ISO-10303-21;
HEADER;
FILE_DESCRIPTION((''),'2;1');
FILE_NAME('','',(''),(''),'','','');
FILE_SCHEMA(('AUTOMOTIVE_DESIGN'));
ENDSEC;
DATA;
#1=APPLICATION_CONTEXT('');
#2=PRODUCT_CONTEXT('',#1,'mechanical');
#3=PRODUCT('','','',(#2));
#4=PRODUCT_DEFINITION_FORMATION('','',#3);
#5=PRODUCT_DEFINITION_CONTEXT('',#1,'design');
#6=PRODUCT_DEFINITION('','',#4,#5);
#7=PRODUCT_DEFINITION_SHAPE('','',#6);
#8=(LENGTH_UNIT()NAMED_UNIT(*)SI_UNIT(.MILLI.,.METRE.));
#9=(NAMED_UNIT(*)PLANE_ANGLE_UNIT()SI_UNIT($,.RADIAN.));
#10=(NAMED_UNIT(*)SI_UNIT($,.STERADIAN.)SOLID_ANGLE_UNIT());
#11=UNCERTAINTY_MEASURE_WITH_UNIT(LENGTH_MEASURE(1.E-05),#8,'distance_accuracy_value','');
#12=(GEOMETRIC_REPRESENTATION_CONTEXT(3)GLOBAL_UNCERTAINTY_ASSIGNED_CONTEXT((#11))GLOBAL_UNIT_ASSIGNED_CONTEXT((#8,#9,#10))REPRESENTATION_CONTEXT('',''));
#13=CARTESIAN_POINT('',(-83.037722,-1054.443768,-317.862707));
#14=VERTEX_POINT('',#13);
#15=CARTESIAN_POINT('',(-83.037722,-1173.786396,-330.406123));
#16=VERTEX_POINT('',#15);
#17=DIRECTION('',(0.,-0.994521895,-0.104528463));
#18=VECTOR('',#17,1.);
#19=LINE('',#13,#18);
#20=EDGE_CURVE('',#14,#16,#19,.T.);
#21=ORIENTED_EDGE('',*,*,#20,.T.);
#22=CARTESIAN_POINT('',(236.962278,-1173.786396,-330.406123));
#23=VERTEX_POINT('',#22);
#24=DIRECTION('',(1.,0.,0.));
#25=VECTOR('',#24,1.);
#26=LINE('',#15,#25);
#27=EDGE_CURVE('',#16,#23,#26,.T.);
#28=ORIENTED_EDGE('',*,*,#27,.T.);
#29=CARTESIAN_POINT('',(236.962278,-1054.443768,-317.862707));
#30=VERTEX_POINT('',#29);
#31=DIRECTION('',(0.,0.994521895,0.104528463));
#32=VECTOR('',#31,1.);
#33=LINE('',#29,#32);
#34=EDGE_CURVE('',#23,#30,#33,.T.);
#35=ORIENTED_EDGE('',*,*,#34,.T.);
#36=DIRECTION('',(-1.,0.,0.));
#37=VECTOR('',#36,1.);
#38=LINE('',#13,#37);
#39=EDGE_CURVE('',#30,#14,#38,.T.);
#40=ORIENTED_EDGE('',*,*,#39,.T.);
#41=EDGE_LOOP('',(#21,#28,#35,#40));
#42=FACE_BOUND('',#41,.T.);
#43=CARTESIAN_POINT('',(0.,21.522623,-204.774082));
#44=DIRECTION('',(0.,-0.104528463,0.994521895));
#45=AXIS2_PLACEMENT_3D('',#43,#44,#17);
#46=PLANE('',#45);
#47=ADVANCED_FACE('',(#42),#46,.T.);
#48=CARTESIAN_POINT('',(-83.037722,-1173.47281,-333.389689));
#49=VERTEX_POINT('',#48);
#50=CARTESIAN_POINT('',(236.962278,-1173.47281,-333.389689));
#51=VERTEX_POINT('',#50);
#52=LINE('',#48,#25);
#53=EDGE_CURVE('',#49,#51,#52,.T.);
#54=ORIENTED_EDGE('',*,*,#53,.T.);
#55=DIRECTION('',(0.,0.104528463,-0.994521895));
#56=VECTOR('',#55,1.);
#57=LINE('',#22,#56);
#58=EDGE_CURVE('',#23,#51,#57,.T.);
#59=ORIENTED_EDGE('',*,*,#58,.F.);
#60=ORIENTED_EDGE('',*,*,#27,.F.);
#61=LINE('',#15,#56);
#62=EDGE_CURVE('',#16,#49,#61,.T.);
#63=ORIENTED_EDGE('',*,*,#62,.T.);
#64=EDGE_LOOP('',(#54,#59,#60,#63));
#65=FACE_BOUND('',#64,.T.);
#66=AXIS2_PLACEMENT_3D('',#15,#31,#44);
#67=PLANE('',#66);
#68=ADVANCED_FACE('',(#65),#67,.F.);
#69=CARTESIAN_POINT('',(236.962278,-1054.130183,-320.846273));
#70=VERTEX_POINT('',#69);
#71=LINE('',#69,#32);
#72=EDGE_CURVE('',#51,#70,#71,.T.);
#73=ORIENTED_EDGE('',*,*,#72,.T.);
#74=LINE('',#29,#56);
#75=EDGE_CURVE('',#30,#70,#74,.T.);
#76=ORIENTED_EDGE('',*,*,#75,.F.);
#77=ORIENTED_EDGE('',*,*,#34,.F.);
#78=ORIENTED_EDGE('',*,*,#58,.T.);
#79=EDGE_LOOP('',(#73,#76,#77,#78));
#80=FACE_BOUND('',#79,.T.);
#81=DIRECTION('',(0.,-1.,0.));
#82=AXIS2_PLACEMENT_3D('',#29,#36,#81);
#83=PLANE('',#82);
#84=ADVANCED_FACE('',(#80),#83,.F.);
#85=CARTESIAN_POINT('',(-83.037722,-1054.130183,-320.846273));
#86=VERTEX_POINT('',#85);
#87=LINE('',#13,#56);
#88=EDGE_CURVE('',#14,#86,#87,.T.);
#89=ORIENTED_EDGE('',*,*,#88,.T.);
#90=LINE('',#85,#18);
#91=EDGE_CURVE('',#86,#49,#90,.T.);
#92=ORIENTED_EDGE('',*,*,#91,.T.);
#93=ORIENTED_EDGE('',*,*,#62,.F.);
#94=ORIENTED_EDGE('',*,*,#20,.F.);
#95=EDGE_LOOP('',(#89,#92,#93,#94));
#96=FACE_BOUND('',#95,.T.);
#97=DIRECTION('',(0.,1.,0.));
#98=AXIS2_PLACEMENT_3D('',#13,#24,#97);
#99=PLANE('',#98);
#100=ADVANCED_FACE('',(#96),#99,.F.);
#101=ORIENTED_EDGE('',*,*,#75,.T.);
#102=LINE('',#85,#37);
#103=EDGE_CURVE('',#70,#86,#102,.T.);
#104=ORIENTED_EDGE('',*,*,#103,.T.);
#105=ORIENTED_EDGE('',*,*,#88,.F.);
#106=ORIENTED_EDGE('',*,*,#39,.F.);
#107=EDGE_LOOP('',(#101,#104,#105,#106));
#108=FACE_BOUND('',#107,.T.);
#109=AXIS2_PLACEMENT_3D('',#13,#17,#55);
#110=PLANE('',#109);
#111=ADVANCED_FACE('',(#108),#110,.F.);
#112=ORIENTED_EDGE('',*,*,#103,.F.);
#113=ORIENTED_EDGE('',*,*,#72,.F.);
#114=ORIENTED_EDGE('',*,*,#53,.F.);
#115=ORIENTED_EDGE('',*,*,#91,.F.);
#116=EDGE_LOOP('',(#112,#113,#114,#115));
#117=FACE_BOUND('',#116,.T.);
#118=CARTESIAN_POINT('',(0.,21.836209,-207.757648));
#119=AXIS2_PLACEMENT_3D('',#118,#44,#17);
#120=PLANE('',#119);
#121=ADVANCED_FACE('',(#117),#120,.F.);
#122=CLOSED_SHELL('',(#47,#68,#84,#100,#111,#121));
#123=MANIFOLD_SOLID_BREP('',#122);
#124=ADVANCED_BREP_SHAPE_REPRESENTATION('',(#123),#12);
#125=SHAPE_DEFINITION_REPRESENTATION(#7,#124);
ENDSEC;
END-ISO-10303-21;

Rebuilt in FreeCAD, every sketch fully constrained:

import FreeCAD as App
import Part
import Sketcher
from FreeCAD import Vector
Q = App.Units.Quantity


def add_polygon(sketch, points):
    """Adds a closed chain of lines whose ends are joined by coincident constraints."""
    first, n = sketch.GeometryCount, len(points)
    for a, b in zip(points, points[1:] + points[:1]):
        sketch.addGeometry(Part.LineSegment(App.Vector(*a, 0), App.Vector(*b, 0)), False)
    for i in range(n):
        sketch.addConstraint(Sketcher.Constraint("Coincident", first + i, 2, first + (i + 1) % n, 1))

doc = App.newDocument("Part")
body = doc.addObject("PartDesign::Body", "Body")

# Sketch on an angled plane
sketch1 = doc.addObject("Sketcher::SketchObject", "Sketch")
body.addObject(sketch1)
sketch1.Placement = App.Placement(Vector(0, 21.836209, -207.757648), App.Rotation(Vector(0.964357389, -0.263153625, -0.027658561), Vector(0.264603149, 0.959074538, 0.100802796), Vector(0, -0.104528463, 0.994521895), "ZXY"))
add_polygon(sketch1, [(514.788649, -980.630654), (206.194284, -1065.303662), (237.946662, -1181.026549), (546.541027, -1096.353541)])  # lines 0-3
sketch1.addConstraint([
    Sketcher.Constraint("Perpendicular", 0, 1),
    Sketcher.Constraint("Perpendicular", 1, 2),
    Sketcher.Constraint("Perpendicular", 2, 3),
    Sketcher.Constraint("Distance", 0, Q("320 mm")),
    Sketcher.Constraint("Distance", 1, Q("120 mm")),
    Sketcher.Constraint("DistanceY", 0, 2, -1, 1, Q("1065.303662 mm")),
    Sketcher.Constraint("DistanceY", 1, 2, -1, 1, Q("1181.026549 mm")),
    Sketcher.Constraint("DistanceX", -1, 1, 3, 2, Q("514.788649 mm")),
])
pad1 = doc.addObject("PartDesign::Pad", "Pad")
body.addObject(pad1)
pad1.Profile = sketch1
pad1.Length = 3

doc.recompute()
